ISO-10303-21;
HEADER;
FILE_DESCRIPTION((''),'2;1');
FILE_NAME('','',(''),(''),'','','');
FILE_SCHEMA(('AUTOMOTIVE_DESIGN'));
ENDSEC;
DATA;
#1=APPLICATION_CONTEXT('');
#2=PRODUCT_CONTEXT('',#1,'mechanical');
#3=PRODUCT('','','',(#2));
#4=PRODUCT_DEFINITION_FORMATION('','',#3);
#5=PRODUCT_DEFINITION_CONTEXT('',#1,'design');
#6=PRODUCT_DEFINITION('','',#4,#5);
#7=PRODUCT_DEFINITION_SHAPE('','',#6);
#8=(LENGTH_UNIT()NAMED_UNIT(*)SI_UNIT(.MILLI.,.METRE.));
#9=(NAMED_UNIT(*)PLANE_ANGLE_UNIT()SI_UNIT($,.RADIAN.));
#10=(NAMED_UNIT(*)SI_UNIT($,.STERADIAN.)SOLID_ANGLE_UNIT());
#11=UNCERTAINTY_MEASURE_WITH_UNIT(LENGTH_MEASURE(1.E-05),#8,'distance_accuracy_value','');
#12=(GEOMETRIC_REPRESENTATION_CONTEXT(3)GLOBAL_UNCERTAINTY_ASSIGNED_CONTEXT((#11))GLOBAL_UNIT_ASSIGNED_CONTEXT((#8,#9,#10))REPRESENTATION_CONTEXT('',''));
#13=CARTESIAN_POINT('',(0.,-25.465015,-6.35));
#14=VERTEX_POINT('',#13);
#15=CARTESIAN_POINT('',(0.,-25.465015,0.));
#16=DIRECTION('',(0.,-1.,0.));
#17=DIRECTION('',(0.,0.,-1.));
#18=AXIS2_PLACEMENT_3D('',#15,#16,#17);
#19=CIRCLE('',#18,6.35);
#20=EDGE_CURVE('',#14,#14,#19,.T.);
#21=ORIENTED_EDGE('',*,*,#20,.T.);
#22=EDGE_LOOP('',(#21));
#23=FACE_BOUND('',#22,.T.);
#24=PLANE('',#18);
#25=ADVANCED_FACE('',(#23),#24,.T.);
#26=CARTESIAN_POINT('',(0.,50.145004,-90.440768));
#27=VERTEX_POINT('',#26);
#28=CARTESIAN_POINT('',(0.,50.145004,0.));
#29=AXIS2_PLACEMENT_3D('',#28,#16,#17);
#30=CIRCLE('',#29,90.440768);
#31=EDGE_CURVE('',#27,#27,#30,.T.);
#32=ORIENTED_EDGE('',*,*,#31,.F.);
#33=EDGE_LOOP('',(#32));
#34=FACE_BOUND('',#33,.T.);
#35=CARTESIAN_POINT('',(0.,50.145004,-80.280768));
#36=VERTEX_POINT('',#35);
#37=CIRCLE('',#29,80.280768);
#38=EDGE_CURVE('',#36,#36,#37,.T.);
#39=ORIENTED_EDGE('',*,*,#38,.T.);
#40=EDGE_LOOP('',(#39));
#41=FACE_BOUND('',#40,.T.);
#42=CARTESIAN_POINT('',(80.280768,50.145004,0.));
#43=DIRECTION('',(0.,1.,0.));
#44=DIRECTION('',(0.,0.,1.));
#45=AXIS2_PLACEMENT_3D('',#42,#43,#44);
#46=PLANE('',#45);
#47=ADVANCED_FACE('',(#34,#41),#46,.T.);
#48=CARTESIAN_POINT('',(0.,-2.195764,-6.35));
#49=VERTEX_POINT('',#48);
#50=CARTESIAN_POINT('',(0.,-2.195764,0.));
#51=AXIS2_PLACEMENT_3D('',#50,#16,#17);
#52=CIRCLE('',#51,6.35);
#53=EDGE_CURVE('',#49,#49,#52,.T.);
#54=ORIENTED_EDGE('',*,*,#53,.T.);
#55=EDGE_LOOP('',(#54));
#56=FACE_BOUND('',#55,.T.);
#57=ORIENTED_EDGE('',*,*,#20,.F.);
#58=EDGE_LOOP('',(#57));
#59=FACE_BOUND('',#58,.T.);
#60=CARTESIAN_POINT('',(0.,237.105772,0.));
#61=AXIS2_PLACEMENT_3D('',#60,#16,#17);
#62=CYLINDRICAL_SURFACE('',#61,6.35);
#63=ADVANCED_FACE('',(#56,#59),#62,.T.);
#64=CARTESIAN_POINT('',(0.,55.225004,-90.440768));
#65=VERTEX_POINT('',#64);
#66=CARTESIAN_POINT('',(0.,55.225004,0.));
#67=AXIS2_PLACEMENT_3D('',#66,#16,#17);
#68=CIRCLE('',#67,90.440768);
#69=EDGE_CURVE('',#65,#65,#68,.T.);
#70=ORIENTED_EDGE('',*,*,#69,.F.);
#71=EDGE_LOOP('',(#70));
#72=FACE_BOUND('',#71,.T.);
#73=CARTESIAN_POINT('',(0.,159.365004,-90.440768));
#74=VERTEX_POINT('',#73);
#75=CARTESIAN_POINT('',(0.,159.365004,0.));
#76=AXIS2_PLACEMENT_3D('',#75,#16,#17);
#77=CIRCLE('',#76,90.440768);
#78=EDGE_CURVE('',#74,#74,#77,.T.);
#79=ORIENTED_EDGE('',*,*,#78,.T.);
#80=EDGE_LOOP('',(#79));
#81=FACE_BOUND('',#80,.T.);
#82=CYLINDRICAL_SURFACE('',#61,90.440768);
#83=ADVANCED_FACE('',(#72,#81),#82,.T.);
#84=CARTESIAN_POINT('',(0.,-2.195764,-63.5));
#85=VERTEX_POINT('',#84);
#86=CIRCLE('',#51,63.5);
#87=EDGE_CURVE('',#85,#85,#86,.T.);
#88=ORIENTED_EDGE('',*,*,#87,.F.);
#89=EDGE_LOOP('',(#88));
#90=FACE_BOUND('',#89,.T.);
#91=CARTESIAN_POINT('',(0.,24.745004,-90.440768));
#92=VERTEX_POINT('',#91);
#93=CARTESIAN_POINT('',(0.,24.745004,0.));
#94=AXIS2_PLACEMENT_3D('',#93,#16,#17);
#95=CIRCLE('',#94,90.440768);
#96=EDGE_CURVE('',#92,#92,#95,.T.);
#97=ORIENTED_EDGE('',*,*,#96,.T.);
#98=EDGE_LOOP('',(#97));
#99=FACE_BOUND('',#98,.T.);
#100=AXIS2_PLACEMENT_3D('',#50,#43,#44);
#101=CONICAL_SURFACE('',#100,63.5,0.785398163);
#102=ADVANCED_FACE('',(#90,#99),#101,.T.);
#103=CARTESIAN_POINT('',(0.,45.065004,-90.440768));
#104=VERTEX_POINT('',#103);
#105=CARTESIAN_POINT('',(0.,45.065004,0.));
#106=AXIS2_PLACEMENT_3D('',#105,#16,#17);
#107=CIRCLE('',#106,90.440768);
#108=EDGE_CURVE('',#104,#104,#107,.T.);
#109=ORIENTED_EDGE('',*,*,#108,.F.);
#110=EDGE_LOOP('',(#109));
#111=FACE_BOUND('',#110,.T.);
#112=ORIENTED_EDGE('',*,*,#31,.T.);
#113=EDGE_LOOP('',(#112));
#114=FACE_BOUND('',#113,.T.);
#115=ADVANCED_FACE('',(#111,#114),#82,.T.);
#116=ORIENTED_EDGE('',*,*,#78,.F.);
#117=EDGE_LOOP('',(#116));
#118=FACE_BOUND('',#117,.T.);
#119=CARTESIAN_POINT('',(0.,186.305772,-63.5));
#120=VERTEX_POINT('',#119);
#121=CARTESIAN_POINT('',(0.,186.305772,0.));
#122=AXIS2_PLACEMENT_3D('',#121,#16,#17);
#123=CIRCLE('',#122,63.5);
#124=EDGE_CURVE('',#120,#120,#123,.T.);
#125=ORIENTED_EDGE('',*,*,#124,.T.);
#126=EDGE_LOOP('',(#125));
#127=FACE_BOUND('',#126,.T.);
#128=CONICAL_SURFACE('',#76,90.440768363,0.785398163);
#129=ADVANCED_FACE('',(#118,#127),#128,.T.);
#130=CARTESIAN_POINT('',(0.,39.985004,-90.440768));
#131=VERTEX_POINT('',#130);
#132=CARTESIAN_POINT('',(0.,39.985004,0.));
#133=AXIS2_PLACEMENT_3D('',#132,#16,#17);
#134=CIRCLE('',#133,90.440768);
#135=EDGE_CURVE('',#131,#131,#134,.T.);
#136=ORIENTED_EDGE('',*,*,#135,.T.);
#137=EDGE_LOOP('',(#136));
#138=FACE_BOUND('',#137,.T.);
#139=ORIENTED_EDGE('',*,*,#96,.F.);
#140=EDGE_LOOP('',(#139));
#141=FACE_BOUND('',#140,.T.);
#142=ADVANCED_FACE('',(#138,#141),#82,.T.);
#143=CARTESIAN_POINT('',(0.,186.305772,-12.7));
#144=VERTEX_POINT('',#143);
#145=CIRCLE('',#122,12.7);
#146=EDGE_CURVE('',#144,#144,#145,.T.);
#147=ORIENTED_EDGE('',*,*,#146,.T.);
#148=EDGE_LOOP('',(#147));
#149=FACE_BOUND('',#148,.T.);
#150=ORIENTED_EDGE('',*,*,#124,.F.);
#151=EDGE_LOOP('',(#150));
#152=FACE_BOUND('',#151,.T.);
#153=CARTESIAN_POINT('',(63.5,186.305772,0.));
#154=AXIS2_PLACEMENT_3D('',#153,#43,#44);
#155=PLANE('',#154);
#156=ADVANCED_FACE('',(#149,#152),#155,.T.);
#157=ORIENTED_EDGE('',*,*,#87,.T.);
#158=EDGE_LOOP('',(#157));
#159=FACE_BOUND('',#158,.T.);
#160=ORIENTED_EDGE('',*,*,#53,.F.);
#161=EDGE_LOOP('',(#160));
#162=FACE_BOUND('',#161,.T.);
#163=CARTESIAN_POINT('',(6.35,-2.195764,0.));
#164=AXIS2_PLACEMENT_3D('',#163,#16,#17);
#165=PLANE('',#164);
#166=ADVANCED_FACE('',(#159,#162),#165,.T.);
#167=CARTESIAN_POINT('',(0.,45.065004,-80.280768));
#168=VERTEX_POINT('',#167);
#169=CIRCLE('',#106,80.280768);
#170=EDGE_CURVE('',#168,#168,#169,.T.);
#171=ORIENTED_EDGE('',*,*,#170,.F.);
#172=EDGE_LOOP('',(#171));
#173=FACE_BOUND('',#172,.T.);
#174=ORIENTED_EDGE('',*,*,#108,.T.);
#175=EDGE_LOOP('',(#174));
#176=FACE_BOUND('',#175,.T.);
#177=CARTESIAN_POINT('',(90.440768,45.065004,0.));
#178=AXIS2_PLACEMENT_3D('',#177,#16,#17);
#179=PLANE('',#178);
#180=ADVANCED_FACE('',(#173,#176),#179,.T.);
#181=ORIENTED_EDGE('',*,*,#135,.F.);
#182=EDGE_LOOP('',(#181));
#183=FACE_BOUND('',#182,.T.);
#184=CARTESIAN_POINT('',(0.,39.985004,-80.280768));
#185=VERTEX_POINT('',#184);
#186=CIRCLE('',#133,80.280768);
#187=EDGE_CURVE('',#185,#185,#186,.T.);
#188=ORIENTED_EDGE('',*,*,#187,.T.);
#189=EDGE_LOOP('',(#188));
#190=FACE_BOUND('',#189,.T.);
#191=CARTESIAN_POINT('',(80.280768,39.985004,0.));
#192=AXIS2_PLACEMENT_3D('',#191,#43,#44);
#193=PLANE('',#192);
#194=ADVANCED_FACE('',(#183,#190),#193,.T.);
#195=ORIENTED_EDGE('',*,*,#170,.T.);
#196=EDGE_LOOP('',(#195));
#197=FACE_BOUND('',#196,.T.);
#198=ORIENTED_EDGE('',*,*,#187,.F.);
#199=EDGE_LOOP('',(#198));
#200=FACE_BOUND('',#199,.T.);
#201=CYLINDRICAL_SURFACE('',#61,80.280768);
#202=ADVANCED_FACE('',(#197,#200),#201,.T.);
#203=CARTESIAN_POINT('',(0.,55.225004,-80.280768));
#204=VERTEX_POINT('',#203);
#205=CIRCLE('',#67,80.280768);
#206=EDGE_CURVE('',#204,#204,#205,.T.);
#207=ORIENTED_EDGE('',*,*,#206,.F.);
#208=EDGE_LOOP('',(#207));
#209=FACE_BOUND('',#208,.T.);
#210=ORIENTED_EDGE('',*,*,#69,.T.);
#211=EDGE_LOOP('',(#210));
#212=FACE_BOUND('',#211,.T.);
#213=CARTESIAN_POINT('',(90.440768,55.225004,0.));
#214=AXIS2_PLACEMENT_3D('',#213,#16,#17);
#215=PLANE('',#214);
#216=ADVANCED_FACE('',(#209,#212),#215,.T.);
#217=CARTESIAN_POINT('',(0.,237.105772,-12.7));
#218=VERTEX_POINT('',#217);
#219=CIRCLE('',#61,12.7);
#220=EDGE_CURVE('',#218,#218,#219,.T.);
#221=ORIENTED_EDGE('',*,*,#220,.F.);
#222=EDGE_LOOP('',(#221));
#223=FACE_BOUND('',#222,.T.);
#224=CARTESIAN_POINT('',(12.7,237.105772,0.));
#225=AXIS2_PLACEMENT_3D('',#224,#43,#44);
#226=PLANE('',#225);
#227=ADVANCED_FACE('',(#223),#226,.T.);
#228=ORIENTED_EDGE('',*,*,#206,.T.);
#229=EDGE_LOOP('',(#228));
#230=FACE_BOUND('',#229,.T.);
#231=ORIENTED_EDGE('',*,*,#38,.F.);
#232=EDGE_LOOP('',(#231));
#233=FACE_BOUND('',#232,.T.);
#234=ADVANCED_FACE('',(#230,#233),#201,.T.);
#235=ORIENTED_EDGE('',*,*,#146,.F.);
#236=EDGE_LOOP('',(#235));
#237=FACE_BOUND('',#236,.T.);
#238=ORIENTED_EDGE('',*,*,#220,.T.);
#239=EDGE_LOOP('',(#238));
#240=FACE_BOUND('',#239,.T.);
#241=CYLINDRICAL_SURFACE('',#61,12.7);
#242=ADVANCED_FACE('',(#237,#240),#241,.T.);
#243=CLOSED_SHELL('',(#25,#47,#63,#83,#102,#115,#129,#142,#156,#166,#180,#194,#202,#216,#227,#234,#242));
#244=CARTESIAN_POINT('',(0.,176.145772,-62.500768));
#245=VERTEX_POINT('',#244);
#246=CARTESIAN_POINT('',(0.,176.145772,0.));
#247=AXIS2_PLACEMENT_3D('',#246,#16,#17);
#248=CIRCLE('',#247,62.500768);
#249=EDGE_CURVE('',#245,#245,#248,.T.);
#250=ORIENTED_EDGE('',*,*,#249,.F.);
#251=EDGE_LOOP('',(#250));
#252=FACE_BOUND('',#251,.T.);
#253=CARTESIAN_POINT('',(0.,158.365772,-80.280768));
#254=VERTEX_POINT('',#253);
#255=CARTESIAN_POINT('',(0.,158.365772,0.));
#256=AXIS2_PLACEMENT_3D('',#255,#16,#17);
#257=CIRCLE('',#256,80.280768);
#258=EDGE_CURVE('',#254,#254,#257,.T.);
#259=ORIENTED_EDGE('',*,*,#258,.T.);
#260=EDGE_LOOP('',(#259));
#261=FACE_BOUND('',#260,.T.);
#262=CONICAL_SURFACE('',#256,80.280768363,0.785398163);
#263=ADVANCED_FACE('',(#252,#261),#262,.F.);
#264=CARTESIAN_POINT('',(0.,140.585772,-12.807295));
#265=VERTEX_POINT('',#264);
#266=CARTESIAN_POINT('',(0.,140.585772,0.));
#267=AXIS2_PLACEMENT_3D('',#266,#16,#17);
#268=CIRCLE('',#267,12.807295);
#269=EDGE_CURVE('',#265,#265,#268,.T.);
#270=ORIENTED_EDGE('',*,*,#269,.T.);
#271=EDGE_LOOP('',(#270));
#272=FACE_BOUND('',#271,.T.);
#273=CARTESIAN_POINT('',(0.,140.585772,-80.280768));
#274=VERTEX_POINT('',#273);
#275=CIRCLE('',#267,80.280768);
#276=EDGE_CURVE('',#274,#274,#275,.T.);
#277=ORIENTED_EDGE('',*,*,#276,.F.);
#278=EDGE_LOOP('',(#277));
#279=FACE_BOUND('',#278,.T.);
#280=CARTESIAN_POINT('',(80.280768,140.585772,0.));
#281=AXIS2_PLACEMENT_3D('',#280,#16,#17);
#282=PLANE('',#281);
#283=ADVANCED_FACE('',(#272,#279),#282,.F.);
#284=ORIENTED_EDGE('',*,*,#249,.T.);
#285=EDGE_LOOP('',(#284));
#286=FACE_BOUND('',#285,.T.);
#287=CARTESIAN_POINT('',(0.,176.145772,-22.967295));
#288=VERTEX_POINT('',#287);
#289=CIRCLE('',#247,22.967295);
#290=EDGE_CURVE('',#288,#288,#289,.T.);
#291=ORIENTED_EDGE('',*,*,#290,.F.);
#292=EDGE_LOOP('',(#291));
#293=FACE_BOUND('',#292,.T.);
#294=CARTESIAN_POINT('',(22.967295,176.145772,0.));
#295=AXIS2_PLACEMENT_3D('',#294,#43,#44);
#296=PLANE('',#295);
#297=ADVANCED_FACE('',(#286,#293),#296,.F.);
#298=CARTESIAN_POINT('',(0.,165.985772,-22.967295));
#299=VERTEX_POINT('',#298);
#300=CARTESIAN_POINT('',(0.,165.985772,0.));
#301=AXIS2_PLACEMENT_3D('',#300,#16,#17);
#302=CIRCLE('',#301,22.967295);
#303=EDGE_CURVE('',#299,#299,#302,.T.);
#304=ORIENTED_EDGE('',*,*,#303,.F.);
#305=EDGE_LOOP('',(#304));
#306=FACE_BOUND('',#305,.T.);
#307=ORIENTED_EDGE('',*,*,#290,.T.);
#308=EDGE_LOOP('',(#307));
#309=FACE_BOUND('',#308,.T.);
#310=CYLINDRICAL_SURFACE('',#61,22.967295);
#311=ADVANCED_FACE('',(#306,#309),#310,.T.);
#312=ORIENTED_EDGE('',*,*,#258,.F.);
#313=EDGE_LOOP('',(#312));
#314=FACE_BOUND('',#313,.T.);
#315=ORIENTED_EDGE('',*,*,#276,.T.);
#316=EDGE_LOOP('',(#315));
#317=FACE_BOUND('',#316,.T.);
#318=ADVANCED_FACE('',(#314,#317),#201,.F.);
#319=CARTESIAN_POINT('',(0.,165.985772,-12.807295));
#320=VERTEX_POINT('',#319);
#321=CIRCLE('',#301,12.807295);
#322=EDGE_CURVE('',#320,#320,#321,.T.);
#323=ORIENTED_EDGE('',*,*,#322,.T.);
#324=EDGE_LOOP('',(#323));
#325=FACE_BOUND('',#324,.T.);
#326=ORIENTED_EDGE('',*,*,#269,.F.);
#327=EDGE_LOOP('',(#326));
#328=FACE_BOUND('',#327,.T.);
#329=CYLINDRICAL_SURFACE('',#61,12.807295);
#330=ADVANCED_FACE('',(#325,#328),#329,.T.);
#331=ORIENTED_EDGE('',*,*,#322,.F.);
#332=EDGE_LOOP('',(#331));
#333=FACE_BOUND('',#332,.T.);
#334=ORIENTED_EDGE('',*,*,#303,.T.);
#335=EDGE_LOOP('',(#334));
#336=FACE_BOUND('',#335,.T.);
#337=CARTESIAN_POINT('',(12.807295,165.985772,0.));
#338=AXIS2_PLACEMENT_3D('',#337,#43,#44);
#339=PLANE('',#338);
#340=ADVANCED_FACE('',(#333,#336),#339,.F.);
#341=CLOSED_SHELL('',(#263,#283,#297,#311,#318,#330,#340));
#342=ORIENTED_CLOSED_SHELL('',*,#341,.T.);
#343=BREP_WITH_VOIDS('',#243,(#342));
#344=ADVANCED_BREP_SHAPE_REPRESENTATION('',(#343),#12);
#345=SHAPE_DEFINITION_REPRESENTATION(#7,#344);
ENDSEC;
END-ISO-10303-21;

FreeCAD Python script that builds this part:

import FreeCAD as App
import Part
import Sketcher

V = App.Vector
Q = App.Units.Quantity

doc = App.newDocument("Part")
params = doc.addObject("Spreadsheet::Sheet", "Params")
for row, (alias, value) in enumerate([
    ("sketch1_width", "2 in"),
    ("sketch1_height", "1 in"),
    ("sketch1_width2", "0.4 in"),
    ("sketch1_width3", "0.5 in"),
    ("sketch1_height2", "0.6 in"),
    ("revolution_angle", "360 deg"),
], start=1):
    params.set(f"A{row}", alias)
    params.set(f"B{row}", "=" + value)
    params.setAlias(f"B{row}", alias)

body = doc.addObject("PartDesign::Body", "Body")

sketch1 = body.newObject("Sketcher::SketchObject", "Sketch")
sketch1.AttachmentSupport = (doc.getObject("XY_Plane"), [""])
sketch1.MapMode = "FlatFace"
sketch1.addGeometry([
    Part.LineSegment(V(6, -2, 0), V(64, -2, 0)),
    Part.LineSegment(V(64, -2, 0), V(90, 25, 0)),
    Part.LineSegment(V(90, 25, 0), V(90, 40, 0)),
    Part.LineSegment(V(90, 40, 0), V(80, 40, 0)),
    Part.LineSegment(V(80, 40, 0), V(80, 45, 0)),
    Part.LineSegment(V(80, 45, 0), V(90, 45, 0)),
    Part.LineSegment(V(90, 45, 0), V(90, 50, 0)),
    Part.LineSegment(V(90, 50, 0), V(80, 50, 0)),
    Part.LineSegment(V(80, 50, 0), V(80, 55, 0)),
    Part.LineSegment(V(80, 55, 0), V(90, 55, 0)),
    Part.LineSegment(V(90, 55, 0), V(90, 159, 0)),
    Part.LineSegment(V(90, 159, 0), V(64, 186, 0)),
    Part.LineSegment(V(64, 186, 0), V(13, 186, 0)),
    Part.LineSegment(V(13, 186, 0), V(13, 237, 0)),
    Part.LineSegment(V(13, 237, 0), V(0, 237, 0)),
    Part.LineSegment(V(0, 237, 0), V(0, -25, 0)),
    Part.LineSegment(V(0, -25, 0), V(6, -25, 0)),
    Part.LineSegment(V(6, -25, 0), V(6, -2, 0)),
    Part.LineSegment(V(23, 166, 0), V(23, 176, 0)),
    Part.LineSegment(V(23, 176, 0), V(63, 176, 0)),
    Part.LineSegment(V(63, 176, 0), V(80, 158, 0)),
    Part.LineSegment(V(80, 158, 0), V(80, 141, 0)),
    Part.LineSegment(V(80, 141, 0), V(13, 141, 0)),
    Part.LineSegment(V(13, 141, 0), V(13, 166, 0)),
    Part.LineSegment(V(13, 166, 0), V(23, 166, 0)),
], False)
sketch1.addConstraint([
    Sketcher.Constraint("Coincident", 0, 2, 1, 1),
    Sketcher.Constraint("Coincident", 1, 2, 2, 1),
    Sketcher.Constraint("Coincident", 2, 2, 3, 1),
    Sketcher.Constraint("Coincident", 3, 2, 4, 1),
    Sketcher.Constraint("Coincident", 4, 2, 5, 1),
    Sketcher.Constraint("Coincident", 5, 2, 6, 1),
    Sketcher.Constraint("Coincident", 6, 2, 7, 1),
    Sketcher.Constraint("Coincident", 7, 2, 8, 1),
    Sketcher.Constraint("Coincident", 8, 2, 9, 1),
    Sketcher.Constraint("Coincident", 9, 2, 10, 1),
    Sketcher.Constraint("Coincident", 10, 2, 11, 1),
    Sketcher.Constraint("Coincident", 11, 2, 12, 1),
    Sketcher.Constraint("Coincident", 12, 2, 13, 1),
    Sketcher.Constraint("Coincident", 13, 2, 14, 1),
    Sketcher.Constraint("Coincident", 14, 2, 15, 1),
    Sketcher.Constraint("Coincident", 15, 2, 16, 1),
    Sketcher.Constraint("Coincident", 16, 2, 17, 1),
    Sketcher.Constraint("Coincident", 17, 2, 0, 1),
    Sketcher.Constraint("Coincident", 18, 2, 19, 1),
    Sketcher.Constraint("Coincident", 19, 2, 20, 1),
    Sketcher.Constraint("Coincident", 20, 2, 21, 1),
    Sketcher.Constraint("Coincident", 21, 2, 22, 1),
    Sketcher.Constraint("Coincident", 22, 2, 23, 1),
    Sketcher.Constraint("Coincident", 23, 2, 24, 1),
    Sketcher.Constraint("Coincident", 24, 2, 18, 1),
    Sketcher.Constraint("Horizontal", 0),
    Sketcher.Constraint("Vertical", 2),
    Sketcher.Constraint("Horizontal", 3),
    Sketcher.Constraint("Vertical", 4),
    Sketcher.Constraint("Horizontal", 5),
    Sketcher.Constraint("Vertical", 6),
    Sketcher.Constraint("Horizontal", 7),
    Sketcher.Constraint("Vertical", 8),
    Sketcher.Constraint("Horizontal", 9),
    Sketcher.Constraint("Vertical", 10),
    Sketcher.Constraint("Horizontal", 12),
    Sketcher.Constraint("Vertical", 13),
    Sketcher.Constraint("Horizontal", 14),
    Sketcher.Constraint("Vertical", 15),
    Sketcher.Constraint("Horizontal", 16),
    Sketcher.Constraint("Vertical", 17),
    Sketcher.Constraint("Vertical", 18),
    Sketcher.Constraint("Horizontal", 19),
    Sketcher.Constraint("Vertical", 21),
    Sketcher.Constraint("Horizontal", 22),
    Sketcher.Constraint("Vertical", 23),
    Sketcher.Constraint("Horizontal", 24),
    Sketcher.Constraint("PointOnObject", 14, 2, -2),
    Sketcher.Constraint("Perpendicular", 1, 11),
    Sketcher.Constraint("Parallel", 11, 20),
    Sketcher.Constraint("Vertical", 2, 2, 5, 2),
    Sketcher.Constraint("Vertical", 4, 2, 7, 2),
    Sketcher.Constraint("Vertical", 6, 2, 9, 2),
    Sketcher.Constraint("Vertical", 0, 2, 11, 2),
    Sketcher.Constraint("Vertical", 8, 2, 20, 2),
    Sketcher.Constraint("Equal", 9, 24),
    Sketcher.Constraint("Equal", 4, 6),
    Sketcher.Constraint("Equal", 6, 8),
    Sketcher.Constraint("Equal", 12, 13),
    Sketcher.Constraint("Equal", 24, 18),
    Sketcher.Constraint("Equal", 1, 11),
    Sketcher.Constraint("DistanceX", 12, 2, 12, 1, Q("2 in")),
    Sketcher.Constraint("DistanceY", 23, 1, 23, 2, Q("1 in")),
    Sketcher.Constraint("DistanceX", 3, 2, 3, 1, Q("0.4 in")),
    Sketcher.Constraint("DistanceX", 14, 2, 14, 1, Q("0.5 in")),
    Sketcher.Constraint("DistanceY", 2, 1, 2, 2, Q("0.6 in")),
    Sketcher.Constraint("DistanceY", 4, 1, 4, 2, Q("0.2 in")),
    Sketcher.Constraint("DistanceY", 10, 1, 10, 2, Q("4.1 in")),
    Sketcher.Constraint("DistanceY", 21, 2, 21, 1, Q("0.7 in")),
    Sketcher.Constraint("Distance", 1, Q("1.5 in")),
    Sketcher.Constraint("DistanceX", 0, 1, 0, 2, Q("2.25 in")),
    Sketcher.Constraint("DistanceY", 18, 2, 12, 2, Q("0.4 in")),
    Sketcher.Constraint("DistanceY", 17, 1, 17, 2, 23.26925),
    Sketcher.Constraint("DistanceX", 19, 1, 19, 2, 39.533474),
    Sketcher.Constraint("DistanceY", 0, 2, -1, 1, 2.195764),
])
sketch1.setExpression("Constraints[61]", "Params.sketch1_width")
sketch1.setExpression("Constraints[62]", "Params.sketch1_height")
sketch1.setExpression("Constraints[63]", "Params.sketch1_width2")
sketch1.setExpression("Constraints[64]", "Params.sketch1_width3")
sketch1.setExpression("Constraints[65]", "Params.sketch1_height2")
revolution = body.newObject("PartDesign::Revolution", "Revolution")
revolution.Profile = sketch1
revolution.ReferenceAxis = (sketch1, ["V_Axis"])
revolution.setExpression("Angle", "Params.revolution_angle")

doc.recompute()
